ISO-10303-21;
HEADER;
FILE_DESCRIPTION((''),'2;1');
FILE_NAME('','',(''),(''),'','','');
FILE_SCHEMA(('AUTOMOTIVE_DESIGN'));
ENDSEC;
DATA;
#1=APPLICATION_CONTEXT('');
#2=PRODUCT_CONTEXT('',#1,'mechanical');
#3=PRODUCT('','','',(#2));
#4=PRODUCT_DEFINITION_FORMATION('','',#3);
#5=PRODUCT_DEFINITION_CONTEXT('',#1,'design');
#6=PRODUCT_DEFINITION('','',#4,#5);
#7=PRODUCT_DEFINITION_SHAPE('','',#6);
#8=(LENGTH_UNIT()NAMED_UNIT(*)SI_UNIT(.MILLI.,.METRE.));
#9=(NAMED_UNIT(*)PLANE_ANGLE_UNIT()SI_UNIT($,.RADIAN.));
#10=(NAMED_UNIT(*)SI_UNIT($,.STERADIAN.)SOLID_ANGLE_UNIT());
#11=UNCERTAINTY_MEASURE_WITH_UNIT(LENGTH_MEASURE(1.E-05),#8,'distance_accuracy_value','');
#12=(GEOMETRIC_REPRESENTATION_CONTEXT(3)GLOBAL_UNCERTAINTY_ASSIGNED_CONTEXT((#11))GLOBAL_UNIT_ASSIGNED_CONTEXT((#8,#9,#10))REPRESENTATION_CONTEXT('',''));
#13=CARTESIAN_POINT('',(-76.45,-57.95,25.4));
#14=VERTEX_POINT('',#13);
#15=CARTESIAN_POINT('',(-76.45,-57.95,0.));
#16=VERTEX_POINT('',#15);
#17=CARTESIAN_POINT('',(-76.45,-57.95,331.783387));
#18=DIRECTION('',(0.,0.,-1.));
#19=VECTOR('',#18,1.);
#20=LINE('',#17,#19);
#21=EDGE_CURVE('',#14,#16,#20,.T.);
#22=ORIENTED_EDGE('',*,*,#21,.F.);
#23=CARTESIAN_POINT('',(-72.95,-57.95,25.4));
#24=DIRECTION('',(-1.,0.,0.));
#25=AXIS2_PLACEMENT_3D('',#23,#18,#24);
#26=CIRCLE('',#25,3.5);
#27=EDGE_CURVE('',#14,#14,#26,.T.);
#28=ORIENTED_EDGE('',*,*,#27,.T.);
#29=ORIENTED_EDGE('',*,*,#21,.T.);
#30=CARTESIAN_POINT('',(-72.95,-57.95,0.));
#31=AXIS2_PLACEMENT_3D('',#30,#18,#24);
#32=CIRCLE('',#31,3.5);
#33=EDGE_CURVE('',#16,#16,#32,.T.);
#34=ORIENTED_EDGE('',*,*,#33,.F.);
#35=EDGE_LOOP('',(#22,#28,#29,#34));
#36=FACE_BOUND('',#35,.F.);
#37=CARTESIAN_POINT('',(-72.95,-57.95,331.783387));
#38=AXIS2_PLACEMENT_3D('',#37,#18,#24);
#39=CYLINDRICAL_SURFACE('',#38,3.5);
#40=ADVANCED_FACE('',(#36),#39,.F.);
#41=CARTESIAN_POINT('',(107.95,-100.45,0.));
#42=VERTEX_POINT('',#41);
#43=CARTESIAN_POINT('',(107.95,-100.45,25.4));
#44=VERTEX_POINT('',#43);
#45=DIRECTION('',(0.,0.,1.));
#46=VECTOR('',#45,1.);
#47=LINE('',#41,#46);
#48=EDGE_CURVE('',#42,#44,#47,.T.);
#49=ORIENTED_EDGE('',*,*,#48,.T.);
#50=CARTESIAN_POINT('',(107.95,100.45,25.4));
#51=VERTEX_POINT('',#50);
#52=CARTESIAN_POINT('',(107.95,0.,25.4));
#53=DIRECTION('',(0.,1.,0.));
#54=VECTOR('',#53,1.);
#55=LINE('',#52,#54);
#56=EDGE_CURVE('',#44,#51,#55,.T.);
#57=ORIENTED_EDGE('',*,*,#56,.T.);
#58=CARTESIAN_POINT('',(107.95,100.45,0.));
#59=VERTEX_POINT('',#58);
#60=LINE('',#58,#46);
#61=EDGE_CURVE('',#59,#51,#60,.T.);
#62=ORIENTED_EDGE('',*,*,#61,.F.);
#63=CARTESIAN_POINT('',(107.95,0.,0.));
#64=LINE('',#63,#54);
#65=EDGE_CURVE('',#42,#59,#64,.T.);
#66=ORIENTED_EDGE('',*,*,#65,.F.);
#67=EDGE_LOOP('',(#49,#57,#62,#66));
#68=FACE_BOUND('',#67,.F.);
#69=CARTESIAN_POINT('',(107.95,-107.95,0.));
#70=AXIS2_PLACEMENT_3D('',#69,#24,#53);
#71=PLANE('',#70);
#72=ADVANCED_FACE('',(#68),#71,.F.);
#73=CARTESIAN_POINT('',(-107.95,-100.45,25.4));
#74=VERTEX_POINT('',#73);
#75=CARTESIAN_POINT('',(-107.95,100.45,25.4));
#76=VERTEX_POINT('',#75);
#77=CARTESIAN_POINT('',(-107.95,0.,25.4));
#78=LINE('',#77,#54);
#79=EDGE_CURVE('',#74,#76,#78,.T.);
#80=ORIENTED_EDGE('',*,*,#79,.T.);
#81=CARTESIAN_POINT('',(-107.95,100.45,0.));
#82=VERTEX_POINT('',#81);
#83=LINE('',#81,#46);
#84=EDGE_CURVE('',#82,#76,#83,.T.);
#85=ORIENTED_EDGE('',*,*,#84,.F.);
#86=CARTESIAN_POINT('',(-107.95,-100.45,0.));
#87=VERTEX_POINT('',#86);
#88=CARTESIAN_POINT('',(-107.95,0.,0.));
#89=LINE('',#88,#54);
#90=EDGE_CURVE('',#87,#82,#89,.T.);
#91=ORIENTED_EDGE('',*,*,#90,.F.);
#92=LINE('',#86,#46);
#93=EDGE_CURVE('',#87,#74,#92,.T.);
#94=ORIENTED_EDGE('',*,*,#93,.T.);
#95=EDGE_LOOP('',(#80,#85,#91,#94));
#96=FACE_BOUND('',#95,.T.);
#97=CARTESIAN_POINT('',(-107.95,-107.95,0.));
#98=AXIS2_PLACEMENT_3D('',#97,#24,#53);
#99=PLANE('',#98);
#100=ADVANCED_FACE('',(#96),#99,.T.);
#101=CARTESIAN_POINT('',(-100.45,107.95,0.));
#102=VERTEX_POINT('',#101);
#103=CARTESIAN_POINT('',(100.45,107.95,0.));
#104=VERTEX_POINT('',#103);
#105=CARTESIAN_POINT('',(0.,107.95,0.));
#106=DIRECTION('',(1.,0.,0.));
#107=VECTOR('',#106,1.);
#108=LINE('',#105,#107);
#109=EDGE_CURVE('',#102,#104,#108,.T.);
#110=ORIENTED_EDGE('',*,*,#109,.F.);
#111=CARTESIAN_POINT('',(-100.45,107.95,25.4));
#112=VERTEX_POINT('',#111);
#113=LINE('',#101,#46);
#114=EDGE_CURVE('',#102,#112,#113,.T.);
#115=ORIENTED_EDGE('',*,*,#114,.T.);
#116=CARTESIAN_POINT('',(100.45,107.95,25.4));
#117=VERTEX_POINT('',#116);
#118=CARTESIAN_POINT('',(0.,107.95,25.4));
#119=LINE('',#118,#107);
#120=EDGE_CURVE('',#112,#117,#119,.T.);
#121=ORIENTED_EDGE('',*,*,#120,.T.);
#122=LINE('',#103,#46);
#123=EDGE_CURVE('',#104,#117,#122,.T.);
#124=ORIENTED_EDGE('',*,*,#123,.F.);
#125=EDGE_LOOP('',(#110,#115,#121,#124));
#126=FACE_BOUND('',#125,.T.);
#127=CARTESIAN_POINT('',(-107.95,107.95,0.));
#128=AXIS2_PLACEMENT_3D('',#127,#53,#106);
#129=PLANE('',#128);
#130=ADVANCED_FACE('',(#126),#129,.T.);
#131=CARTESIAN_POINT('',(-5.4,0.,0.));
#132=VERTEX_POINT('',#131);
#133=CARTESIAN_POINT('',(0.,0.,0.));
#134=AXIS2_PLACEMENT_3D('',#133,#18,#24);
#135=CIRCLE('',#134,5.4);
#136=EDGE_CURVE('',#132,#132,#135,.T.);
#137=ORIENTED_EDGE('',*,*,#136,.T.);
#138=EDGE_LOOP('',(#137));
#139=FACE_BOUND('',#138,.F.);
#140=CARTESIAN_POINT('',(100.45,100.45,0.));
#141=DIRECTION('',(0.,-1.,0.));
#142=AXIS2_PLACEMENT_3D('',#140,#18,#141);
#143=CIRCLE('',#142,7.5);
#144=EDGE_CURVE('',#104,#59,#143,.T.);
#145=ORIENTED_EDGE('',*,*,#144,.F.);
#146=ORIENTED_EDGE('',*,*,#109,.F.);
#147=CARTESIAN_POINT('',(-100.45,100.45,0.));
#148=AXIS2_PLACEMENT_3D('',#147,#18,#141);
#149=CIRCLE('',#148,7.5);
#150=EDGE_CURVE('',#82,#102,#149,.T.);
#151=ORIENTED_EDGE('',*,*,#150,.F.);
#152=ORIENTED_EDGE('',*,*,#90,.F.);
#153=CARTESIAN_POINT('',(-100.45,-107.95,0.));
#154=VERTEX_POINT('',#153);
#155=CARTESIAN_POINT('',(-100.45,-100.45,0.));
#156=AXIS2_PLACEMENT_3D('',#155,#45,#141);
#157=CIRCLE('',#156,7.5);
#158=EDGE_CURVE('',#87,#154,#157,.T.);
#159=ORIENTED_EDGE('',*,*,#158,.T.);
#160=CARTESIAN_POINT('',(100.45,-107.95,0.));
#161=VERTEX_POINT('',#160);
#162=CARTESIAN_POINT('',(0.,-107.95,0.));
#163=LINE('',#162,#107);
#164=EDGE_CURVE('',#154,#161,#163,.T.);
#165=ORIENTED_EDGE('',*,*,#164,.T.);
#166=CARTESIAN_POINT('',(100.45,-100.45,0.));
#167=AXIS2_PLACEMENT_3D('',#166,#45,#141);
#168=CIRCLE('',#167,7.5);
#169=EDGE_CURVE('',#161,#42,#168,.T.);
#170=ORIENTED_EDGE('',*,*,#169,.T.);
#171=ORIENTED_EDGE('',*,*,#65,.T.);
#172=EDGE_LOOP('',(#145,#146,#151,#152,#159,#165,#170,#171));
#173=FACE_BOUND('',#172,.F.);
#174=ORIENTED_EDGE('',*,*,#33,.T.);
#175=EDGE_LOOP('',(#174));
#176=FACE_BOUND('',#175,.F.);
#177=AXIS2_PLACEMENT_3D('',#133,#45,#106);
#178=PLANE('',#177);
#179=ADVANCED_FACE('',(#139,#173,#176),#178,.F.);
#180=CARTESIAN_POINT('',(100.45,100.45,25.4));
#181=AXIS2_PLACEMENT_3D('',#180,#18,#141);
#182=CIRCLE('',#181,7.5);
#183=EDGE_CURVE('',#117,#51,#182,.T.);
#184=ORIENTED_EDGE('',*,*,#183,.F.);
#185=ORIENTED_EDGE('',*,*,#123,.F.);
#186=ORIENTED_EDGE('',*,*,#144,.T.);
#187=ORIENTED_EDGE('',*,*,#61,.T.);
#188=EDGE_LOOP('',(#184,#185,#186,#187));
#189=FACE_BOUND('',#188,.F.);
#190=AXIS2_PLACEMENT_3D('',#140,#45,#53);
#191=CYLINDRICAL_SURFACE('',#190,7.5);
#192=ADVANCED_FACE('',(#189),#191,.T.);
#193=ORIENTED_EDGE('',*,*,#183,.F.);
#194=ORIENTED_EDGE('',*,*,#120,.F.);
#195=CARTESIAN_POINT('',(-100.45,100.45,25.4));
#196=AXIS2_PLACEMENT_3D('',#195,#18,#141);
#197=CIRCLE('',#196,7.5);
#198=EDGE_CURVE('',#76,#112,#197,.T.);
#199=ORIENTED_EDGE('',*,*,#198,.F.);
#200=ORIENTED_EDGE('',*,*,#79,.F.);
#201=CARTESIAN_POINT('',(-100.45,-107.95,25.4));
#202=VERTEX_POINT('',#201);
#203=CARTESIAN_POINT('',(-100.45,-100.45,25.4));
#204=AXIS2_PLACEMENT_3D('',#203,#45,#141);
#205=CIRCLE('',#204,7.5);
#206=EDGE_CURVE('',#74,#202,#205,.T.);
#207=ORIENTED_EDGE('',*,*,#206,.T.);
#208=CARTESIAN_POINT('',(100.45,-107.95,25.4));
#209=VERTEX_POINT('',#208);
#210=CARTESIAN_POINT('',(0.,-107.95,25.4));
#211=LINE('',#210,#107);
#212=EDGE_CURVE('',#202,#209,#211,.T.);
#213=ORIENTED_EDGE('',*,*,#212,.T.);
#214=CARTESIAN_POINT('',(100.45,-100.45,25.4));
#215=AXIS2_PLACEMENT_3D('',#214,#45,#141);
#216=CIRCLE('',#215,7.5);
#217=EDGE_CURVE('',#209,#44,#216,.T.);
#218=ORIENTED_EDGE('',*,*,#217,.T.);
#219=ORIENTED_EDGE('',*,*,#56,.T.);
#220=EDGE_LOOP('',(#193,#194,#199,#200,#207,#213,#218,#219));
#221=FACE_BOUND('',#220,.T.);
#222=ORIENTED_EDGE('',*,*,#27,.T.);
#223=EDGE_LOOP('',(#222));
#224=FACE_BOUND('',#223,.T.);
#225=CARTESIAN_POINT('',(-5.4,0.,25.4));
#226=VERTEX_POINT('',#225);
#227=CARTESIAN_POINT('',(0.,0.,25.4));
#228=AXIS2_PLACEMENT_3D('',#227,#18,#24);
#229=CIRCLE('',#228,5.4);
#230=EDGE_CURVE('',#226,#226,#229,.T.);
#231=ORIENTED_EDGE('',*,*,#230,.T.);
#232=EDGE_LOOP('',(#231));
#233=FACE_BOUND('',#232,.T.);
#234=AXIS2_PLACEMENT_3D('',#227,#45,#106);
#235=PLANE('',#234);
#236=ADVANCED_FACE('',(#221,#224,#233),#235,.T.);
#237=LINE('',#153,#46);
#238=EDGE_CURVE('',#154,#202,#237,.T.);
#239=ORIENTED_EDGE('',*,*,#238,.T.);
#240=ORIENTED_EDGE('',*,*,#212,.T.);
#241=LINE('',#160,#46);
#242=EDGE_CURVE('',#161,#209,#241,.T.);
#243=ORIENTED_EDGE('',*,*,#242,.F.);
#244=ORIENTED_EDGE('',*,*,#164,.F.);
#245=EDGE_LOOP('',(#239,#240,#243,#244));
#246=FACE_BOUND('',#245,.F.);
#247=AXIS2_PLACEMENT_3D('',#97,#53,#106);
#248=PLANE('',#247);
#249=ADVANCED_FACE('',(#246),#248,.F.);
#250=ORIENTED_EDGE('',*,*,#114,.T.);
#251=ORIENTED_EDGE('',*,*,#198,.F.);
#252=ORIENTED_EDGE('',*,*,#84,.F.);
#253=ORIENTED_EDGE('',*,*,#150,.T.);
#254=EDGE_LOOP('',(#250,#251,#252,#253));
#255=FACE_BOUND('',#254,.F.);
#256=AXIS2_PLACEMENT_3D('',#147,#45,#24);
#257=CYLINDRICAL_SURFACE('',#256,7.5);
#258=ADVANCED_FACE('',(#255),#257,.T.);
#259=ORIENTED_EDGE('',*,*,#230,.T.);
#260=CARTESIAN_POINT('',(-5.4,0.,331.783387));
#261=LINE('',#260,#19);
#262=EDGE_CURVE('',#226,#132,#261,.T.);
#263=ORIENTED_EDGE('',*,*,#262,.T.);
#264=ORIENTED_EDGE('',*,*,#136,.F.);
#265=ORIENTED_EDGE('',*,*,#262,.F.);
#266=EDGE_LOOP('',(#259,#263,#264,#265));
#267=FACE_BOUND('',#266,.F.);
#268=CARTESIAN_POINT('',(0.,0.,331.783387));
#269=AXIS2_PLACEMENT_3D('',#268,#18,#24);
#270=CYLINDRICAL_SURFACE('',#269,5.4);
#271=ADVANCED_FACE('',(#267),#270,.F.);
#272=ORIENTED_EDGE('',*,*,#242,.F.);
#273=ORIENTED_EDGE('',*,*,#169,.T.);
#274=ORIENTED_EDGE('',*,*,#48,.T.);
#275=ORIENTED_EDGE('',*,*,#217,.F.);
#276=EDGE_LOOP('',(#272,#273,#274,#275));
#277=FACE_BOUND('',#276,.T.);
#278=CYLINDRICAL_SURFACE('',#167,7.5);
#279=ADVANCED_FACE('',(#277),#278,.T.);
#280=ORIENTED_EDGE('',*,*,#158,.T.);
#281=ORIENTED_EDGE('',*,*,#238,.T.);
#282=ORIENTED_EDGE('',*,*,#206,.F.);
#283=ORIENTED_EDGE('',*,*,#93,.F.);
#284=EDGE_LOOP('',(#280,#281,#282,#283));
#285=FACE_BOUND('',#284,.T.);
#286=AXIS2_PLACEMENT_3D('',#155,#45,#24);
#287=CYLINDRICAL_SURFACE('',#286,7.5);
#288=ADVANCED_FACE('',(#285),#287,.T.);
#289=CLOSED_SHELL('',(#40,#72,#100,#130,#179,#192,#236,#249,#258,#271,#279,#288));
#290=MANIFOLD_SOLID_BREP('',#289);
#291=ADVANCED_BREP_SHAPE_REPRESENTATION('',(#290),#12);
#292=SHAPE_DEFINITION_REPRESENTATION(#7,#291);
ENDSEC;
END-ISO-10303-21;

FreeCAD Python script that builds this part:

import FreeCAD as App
import Part
import Sketcher
from FreeCAD import Vector
Q = App.Units.Quantity


def edges_at(feature, points):
    """Names of the edges that pass closest to the given points."""
    edges = feature.Shape.Edges
    near = lambda p: min(range(len(edges)), key=lambda i: edges[i].distToShape(Part.Vertex(*p))[0])
    return sorted({f"Edge{near(p) + 1}" for p in points})


def add_polygon(sketch, points):
    """Adds a closed chain of lines whose ends are joined by coincident constraints."""
    first, n = sketch.GeometryCount, len(points)
    for a, b in zip(points, points[1:] + points[:1]):
        sketch.addGeometry(Part.LineSegment(App.Vector(*a, 0), App.Vector(*b, 0)), False)
    for i in range(n):
        sketch.addConstraint(Sketcher.Constraint("Coincident", first + i, 2, first + (i + 1) % n, 1))

doc = App.newDocument("Part")
body = doc.addObject("PartDesign::Body", "Body")

sketch1 = body.newObject("Sketcher::SketchObject", "Sketch")
sketch1.AttachmentSupport = (doc.getObject("XY_Plane"), [""])
sketch1.MapMode = "FlatFace"
add_polygon(sketch1, [(-107.95, 107.95), (-107.95, -107.95), (107.95, -107.95), (107.95, 107.95)])
sketch1.addConstraint([
    Sketcher.Constraint("Vertical", 0),
    Sketcher.Constraint("Horizontal", 1),
    Sketcher.Constraint("Vertical", 2),
    Sketcher.Constraint("Horizontal", 3),
    Sketcher.Constraint("Symmetric", 0, 2, 2, 2, -1, 1),
    Sketcher.Constraint("Equal", 3, 0),
    Sketcher.Constraint("DistanceX", 1, 1, 1, 2, Q("215.9 mm")),
])
pad1 = body.newObject("PartDesign::Pad", "Pad")
pad1.Profile = sketch1
pad1.Length = 25.4

sketch2 = body.newObject("Sketcher::SketchObject", "Sketch001")
sketch2.AttachmentSupport = (doc.getObject("XY_Plane"), [""])
sketch2.MapMode = "FlatFace"
sketch2.AttachmentOffset = App.Placement(Vector(0, 0, 25.4), App.Rotation())
sketch2.addGeometry(Part.Circle(Vector(0, 0, 0), Vector(0, 0, 1), 5.4), False)
sketch2.addConstraint([
    Sketcher.Constraint("Coincident", 0, 3, -1, 1),
    Sketcher.Constraint("Diameter", 0, Q("10.8 mm")),
])
doc.recompute()
hole = body.newObject("PartDesign::Hole", "Hole")
hole.Profile = sketch2
hole.ThreadType = "None"
hole.Diameter = 10.8
hole.DepthType = "ThroughAll"
doc.recompute()

fillet = body.newObject("PartDesign::Fillet", "Fillet")
fillet.Base = (hole, edges_at(hole, [
    (-107.95, -107.95, 12.7),
    (107.95, -107.95, 12.7),
    (107.95, 107.95, 12.7),
    (-107.95, 107.95, 12.7),
]))
fillet.Radius = 7.5

sketch3 = body.newObject("Sketcher::SketchObject", "Sketch002")
sketch3.AttachmentSupport = (doc.getObject("XY_Plane"), [""])
sketch3.MapMode = "FlatFace"
sketch3.AttachmentOffset = App.Placement(Vector(0, 0, 25.4), App.Rotation())
sketch3.addGeometry(Part.Circle(Vector(-72.95, -57.95, 0), Vector(0, 0, 1), 3.5), False)
sketch3.addConstraint([
    Sketcher.Constraint("Diameter", 0, Q("7 mm")),
    Sketcher.Constraint("DistanceX", 0, 3, -1, 1, Q("72.95 mm")),
    Sketcher.Constraint("DistanceY", 0, 3, -1, 1, Q("57.95 mm")),
])
doc.recompute()
hole2 = body.newObject("PartDesign::Hole", "Hole001")
hole2.Profile = sketch3
hole2.ThreadType = "None"
hole2.Diameter = 7
hole2.DepthType = "ThroughAll"

doc.recompute()
